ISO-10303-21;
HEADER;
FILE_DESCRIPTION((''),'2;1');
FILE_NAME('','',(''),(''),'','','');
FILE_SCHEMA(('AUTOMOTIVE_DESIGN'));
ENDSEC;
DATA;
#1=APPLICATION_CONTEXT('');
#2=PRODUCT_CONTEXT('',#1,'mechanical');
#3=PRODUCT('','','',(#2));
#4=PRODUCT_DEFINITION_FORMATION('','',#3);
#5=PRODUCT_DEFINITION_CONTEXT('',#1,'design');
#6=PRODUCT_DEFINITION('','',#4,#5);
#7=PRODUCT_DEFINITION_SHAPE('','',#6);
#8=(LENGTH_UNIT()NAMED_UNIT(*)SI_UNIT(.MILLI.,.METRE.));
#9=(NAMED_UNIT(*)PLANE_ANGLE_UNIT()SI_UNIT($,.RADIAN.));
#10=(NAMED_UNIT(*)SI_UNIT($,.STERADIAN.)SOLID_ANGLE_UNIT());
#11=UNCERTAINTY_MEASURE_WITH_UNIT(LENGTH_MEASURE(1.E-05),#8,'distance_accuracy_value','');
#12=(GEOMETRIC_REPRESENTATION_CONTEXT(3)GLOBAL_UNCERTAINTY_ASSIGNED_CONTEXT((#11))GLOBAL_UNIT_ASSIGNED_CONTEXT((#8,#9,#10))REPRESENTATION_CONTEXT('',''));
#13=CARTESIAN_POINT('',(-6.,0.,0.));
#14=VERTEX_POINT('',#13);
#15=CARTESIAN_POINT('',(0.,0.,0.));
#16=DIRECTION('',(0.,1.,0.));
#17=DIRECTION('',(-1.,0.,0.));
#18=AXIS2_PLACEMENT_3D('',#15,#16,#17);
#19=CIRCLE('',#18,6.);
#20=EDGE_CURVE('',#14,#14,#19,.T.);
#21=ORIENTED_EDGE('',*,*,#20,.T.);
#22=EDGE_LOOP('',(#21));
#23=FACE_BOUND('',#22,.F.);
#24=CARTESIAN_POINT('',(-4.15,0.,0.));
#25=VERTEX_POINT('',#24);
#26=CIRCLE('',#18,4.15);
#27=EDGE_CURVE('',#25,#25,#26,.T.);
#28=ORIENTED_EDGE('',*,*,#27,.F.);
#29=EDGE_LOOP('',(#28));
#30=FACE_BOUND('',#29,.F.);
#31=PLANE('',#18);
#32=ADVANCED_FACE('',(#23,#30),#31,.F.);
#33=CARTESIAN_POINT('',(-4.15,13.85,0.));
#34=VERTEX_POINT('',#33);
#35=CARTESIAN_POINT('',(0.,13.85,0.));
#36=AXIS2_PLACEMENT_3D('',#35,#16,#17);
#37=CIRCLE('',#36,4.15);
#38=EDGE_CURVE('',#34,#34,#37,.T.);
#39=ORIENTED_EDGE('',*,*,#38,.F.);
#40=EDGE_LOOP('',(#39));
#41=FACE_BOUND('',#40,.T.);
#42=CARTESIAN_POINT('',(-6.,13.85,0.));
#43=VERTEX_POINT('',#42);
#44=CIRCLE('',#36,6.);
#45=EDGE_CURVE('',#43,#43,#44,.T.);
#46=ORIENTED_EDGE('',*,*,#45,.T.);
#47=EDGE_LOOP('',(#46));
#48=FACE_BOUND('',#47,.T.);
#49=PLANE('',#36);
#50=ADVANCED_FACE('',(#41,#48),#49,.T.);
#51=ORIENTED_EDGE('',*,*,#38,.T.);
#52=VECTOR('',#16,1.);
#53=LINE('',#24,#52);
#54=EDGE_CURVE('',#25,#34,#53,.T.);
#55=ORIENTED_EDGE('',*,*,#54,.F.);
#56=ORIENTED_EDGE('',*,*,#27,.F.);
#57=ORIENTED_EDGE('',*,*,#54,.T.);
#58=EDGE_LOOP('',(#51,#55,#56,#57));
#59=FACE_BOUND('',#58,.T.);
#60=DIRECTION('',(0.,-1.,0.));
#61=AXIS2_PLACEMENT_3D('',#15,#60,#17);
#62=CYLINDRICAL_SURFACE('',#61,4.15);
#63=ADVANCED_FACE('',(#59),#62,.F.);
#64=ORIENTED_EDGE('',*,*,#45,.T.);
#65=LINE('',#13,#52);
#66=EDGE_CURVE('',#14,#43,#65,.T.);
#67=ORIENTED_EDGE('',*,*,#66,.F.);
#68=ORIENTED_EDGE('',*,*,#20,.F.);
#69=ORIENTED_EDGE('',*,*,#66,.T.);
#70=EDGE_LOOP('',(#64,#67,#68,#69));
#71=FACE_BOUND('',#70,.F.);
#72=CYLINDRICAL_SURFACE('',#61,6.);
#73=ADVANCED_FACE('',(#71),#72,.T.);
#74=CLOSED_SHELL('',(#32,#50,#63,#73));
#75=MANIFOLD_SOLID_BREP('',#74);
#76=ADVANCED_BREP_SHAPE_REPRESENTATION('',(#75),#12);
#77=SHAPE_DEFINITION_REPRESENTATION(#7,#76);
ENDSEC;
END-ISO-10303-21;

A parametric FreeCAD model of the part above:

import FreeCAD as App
import Part
import Sketcher
from FreeCAD import Vector

doc = App.newDocument("Part")
body = doc.addObject("PartDesign::Body", "Body")

# Sketch on XZ plane
sketch1 = body.newObject("Sketcher::SketchObject", "Sketch")
sketch1.AttachmentSupport = (doc.getObject("XZ_Plane"), [""])
sketch1.MapMode = "FlatFace"
sketch1.addGeometry(Part.Circle(Vector(0, 0, 0), Vector(0, 0, 1), 6), False)
sketch1.addGeometry(Part.Circle(Vector(0, 0, 0), Vector(0, 0, 1), 4.2), False)
sketch1.addConstraint(Sketcher.Constraint("Coincident", 0, 3, -1, 1))
sketch1.addConstraint(Sketcher.Constraint("Coincident", 1, 3, -1, 1))
sketch1.addConstraint(Sketcher.Constraint("Diameter", 0, 12.0))
sketch1.addConstraint(Sketcher.Constraint("Diameter", 1, 8.3))
pad1 = body.newObject("PartDesign::Pad", "Pad")
pad1.Profile = sketch1
pad1.Length = 13.85
pad1.Reversed = True

doc.recompute()
